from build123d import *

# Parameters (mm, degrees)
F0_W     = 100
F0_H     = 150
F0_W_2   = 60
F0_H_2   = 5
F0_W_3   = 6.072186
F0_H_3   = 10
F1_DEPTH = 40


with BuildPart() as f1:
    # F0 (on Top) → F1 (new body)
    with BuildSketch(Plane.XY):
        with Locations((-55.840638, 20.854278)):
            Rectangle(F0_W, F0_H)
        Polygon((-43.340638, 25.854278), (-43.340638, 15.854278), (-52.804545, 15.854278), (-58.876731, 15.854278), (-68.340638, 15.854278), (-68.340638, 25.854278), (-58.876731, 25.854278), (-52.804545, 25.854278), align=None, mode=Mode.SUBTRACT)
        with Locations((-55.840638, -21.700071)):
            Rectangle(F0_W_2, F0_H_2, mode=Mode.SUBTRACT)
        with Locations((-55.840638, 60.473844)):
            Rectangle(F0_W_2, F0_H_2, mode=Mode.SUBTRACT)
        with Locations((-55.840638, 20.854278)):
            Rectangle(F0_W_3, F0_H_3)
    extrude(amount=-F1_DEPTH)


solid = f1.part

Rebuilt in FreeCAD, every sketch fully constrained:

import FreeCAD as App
import Part
import Sketcher

V = App.Vector
Q = App.Units.Quantity


def add_polygon(sketch, points):
    """Adds a closed chain of lines whose ends are joined by coincident constraints."""
    first, n = sketch.GeometryCount, len(points)
    for a, b in zip(points, points[1:] + points[:1]):
        sketch.addGeometry(Part.LineSegment(App.Vector(*a, 0), App.Vector(*b, 0)), False)
    for i in range(n):
        sketch.addConstraint(Sketcher.Constraint("Coincident", first + i, 2, first + (i + 1) % n, 1))

doc = App.newDocument("Part")
body = doc.addObject("PartDesign::Body", "Body")

# Sketch on XY plane
sketch1 = doc.addObject("Sketcher::SketchObject", "Sketch")
body.addObject(sketch1)
sketch1.AttachmentSupport = (doc.XY_Plane, [""])
sketch1.MapMode = "FlatFace"
add_polygon(sketch1, [(-106, 96), (-106, -54), (-6, -54), (-6, 96)])  # lines 0-3
add_polygon(sketch1, [(-26, -24), (-86, -24), (-86, -19), (-26, -19)])  # lines 4-7
add_polygon(sketch1, [(-68, 26), (-59, 26), (-59, 16), (-68, 16)])  # lines 8-11
add_polygon(sketch1, [(-53, 26), (-43, 26), (-43, 16), (-53, 16)])  # lines 12-15
add_polygon(sketch1, [(-26, 58), (-86, 58), (-86, 63), (-26, 63)])  # lines 16-19
sketch1.addConstraint(Sketcher.Constraint("Vertical", 0))
sketch1.addConstraint(Sketcher.Constraint("Horizontal", 1))
sketch1.addConstraint(Sketcher.Constraint("Vertical", 2))
sketch1.addConstraint(Sketcher.Constraint("Horizontal", 3))
sketch1.addConstraint(Sketcher.Constraint("Horizontal", 4))
sketch1.addConstraint(Sketcher.Constraint("Vertical", 5))
sketch1.addConstraint(Sketcher.Constraint("Horizontal", 6))
sketch1.addConstraint(Sketcher.Constraint("Vertical", 7))
sketch1.addConstraint(Sketcher.Constraint("Horizontal", 8))
sketch1.addConstraint(Sketcher.Constraint("Vertical", 9))
sketch1.addConstraint(Sketcher.Constraint("Horizontal", 10))
sketch1.addConstraint(Sketcher.Constraint("Vertical", 11))
sketch1.addConstraint(Sketcher.Constraint("Horizontal", 12))
sketch1.addConstraint(Sketcher.Constraint("Vertical", 13))
sketch1.addConstraint(Sketcher.Constraint("Horizontal", 14))
sketch1.addConstraint(Sketcher.Constraint("Vertical", 15))
sketch1.addConstraint(Sketcher.Constraint("Horizontal", 16))
sketch1.addConstraint(Sketcher.Constraint("Vertical", 17))
sketch1.addConstraint(Sketcher.Constraint("Horizontal", 18))
sketch1.addConstraint(Sketcher.Constraint("Vertical", 19))
sketch1.addConstraint(Sketcher.Constraint("Horizontal", 11, 2, 12, 2))
sketch1.addConstraint(Sketcher.Constraint("Horizontal", 10, 2, 13, 2))
sketch1.addConstraint(Sketcher.Constraint("Vertical", 5, 2, 16, 2))
sketch1.addConstraint(Sketcher.Constraint("Vertical", 7, 2, 18, 2))
sketch1.addConstraint(Sketcher.Constraint("Equal", 10, 12))
sketch1.addConstraint(Sketcher.Constraint("Equal", 7, 17))
sketch1.addConstraint(Sketcher.Constraint("DistanceX", 1, 1, 1, 2, Q("100 mm")))
sketch1.addConstraint(Sketcher.Constraint("DistanceX", 4, 2, 4, 1, Q("60 mm")))
sketch1.addConstraint(Sketcher.Constraint("DistanceY", 0, 2, 0, 1, Q("150 mm")))
sketch1.addConstraint(Sketcher.Constraint("DistanceY", 5, 1, 5, 2, Q("5 mm")))
sketch1.addConstraint(Sketcher.Constraint("DistanceY", 9, 2, 9, 1, Q("10 mm")))
sketch1.addConstraint(Sketcher.Constraint("DistanceX", 0, 2, 4, 2, Q("20 mm")))
sketch1.addConstraint(Sketcher.Constraint("DistanceY", 8, 2, 3, 2, Q("70 mm")))
sketch1.addConstraint(Sketcher.Constraint("DistanceX", 11, 2, 12, 2, Q("25 mm")))
sketch1.addConstraint(Sketcher.Constraint("DistanceX", 5, 2, 10, 2, Q("17.5 mm")))
sketch1.addConstraint(Sketcher.Constraint("DistanceX", 8, 1, 8, 2, Q("9.463907 mm")))
sketch1.addConstraint(Sketcher.Constraint("DistanceX", 0, 2, -1, 1, Q("105.840638 mm")))
sketch1.addConstraint(Sketcher.Constraint("DistanceY", 4, 2, -1, 1, Q("24.200071 mm")))
sketch1.addConstraint(Sketcher.Constraint("DistanceY", -1, 1, 8, 2, Q("25.854278 mm")))
sketch1.addConstraint(Sketcher.Constraint("DistanceY", -1, 1, 16, 2, Q("57.973844 mm")))
pad1 = doc.addObject("PartDesign::Pad", "Pad")
body.addObject(pad1)
pad1.Profile = sketch1
pad1.Length = 40
pad1.Reversed = True

doc.recompute()
